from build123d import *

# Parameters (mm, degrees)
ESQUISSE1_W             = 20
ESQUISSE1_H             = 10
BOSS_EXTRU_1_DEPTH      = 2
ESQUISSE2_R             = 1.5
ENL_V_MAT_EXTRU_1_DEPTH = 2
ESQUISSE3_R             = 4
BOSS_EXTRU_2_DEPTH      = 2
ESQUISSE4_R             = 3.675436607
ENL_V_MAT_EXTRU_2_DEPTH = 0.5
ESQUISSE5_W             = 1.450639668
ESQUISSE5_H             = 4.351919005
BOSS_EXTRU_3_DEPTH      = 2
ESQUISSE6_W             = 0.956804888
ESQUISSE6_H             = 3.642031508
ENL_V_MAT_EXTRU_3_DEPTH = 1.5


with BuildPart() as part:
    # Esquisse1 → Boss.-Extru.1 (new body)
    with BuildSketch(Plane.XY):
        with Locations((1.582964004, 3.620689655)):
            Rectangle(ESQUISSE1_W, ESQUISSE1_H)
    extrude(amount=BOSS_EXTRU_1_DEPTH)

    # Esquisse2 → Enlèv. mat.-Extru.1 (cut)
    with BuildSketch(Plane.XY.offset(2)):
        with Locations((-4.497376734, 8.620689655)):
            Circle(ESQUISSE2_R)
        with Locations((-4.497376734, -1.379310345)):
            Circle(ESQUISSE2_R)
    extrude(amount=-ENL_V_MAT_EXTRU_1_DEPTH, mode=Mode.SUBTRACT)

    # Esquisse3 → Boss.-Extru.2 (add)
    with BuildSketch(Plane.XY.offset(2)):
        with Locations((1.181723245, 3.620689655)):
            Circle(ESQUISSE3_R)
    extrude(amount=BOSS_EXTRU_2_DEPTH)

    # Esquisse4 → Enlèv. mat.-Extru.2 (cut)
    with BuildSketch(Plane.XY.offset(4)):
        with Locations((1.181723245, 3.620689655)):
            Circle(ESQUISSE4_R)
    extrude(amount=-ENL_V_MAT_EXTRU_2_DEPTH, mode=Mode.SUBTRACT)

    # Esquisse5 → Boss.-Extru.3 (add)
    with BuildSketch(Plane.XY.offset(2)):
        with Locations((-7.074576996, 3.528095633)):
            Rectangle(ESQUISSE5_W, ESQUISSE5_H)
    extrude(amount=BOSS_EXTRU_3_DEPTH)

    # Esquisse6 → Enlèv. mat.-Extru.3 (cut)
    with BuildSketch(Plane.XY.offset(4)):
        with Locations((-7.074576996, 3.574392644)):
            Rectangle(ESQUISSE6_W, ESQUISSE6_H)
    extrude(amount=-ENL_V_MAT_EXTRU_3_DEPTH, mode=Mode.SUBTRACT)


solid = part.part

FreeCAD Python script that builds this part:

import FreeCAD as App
import Part
import Sketcher
from FreeCAD import Vector
Q = App.Units.Quantity

doc = App.newDocument("Part")
body = doc.addObject("PartDesign::Body", "Body")

sketch1 = doc.addObject("Sketcher::SketchObject", "Sketch")
body.addObject(sketch1)
sketch1.AttachmentSupport = (doc.XY_Plane, [""])
sketch1.MapMode = "FlatFace"
sketch1.addGeometry(Part.LineSegment(Vector(-8, 9, 0), Vector(-8, -1, 0)), False)
sketch1.addGeometry(Part.LineSegment(Vector(-8, -1, 0), Vector(12, -1, 0)), False)
sketch1.addGeometry(Part.LineSegment(Vector(12, -1, 0), Vector(12, 9, 0)), False)
sketch1.addGeometry(Part.LineSegment(Vector(12, 9, 0), Vector(-8, 9, 0)), False)
sketch1.addConstraint(Sketcher.Constraint("Coincident", 0, 2, 1, 1))
sketch1.addConstraint(Sketcher.Constraint("Coincident", 1, 2, 2, 1))
sketch1.addConstraint(Sketcher.Constraint("Coincident", 2, 2, 3, 1))
sketch1.addConstraint(Sketcher.Constraint("Coincident", 3, 2, 0, 1))
sketch1.addConstraint(Sketcher.Constraint("Vertical", 0))
sketch1.addConstraint(Sketcher.Constraint("Horizontal", 1))
sketch1.addConstraint(Sketcher.Constraint("Vertical", 2))
sketch1.addConstraint(Sketcher.Constraint("Horizontal", 3))
sketch1.addConstraint(Sketcher.Constraint("DistanceX", 1, 1, 1, 2, Q("20 mm")))
sketch1.addConstraint(Sketcher.Constraint("DistanceY", 0, 2, 0, 1, Q("10 mm")))
sketch1.addConstraint(Sketcher.Constraint("DistanceY", 0, 2, -1, 1, Q("1.37931 mm")))
sketch1.addConstraint(Sketcher.Constraint("DistanceX", 0, 2, -1, 1, Q("8.417036 mm")))
pad1 = doc.addObject("PartDesign::Pad", "Pad")
body.addObject(pad1)
pad1.Profile = sketch1
pad1.Length = 2

sketch2 = doc.addObject("Sketcher::SketchObject", "Sketch001")
body.addObject(sketch2)
sketch2.AttachmentSupport = (doc.XY_Plane, [""])
sketch2.MapMode = "FlatFace"
sketch2.AttachmentOffset = App.Placement(Vector(0, 0, 2), App.Rotation())
sketch2.addGeometry(Part.Circle(Vector(-4.5, 8.6, 0), Vector(0, 0, 1), 1.5), False)
sketch2.addGeometry(Part.Circle(Vector(-4.5, -1.4, 0), Vector(0, 0, 1), 1.5), False)
sketch2.addConstraint(Sketcher.Constraint("Equal", 0, 1))
sketch2.addConstraint(Sketcher.Constraint("Vertical", 0, 3, 1, 3))
sketch2.addConstraint(Sketcher.Constraint("Diameter", 0, Q("3 mm")))
sketch2.addConstraint(Sketcher.Constraint("DistanceY", 1, 3, 0, 3, Q("10 mm")))
sketch2.addConstraint(Sketcher.Constraint("DistanceY", -1, 1, 0, 3, Q("8.62069 mm")))
sketch2.addConstraint(Sketcher.Constraint("DistanceX", 0, 3, -1, 1, Q("4.497377 mm")))
pocket1 = doc.addObject("PartDesign::Pocket", "Pocket")
body.addObject(pocket1)
pocket1.Profile = sketch2
pocket1.Length = 2

sketch3 = doc.addObject("Sketcher::SketchObject", "Sketch002")
body.addObject(sketch3)
sketch3.AttachmentSupport = (doc.XY_Plane, [""])
sketch3.MapMode = "FlatFace"
sketch3.AttachmentOffset = App.Placement(Vector(0, 0, 2), App.Rotation())
sketch3.addGeometry(Part.Circle(Vector(1.2, 3.6, 0), Vector(0, 0, 1), 4), False)
sketch3.addConstraint(Sketcher.Constraint("Diameter", 0, Q("8 mm")))
sketch3.addConstraint(Sketcher.Constraint("DistanceY", -1, 1, 0, 3, Q("3.62069 mm")))
sketch3.addConstraint(Sketcher.Constraint("DistanceX", -1, 1, 0, 3, Q("1.181723 mm")))
pad2 = doc.addObject("PartDesign::Pad", "Pad001")
body.addObject(pad2)
pad2.Profile = sketch3
pad2.Length = 2

sketch4 = doc.addObject("Sketcher::SketchObject", "Sketch003")
body.addObject(sketch4)
sketch4.AttachmentSupport = (doc.XY_Plane, [""])
sketch4.MapMode = "FlatFace"
sketch4.AttachmentOffset = App.Placement(Vector(0, 0, 4), App.Rotation())
sketch4.addGeometry(Part.Circle(Vector(1.2, 3.6, 0), Vector(0, 0, 1), 3.7), False)
sketch4.addConstraint(Sketcher.Constraint("Diameter", 0, Q("7.350873 mm")))
sketch4.addConstraint(Sketcher.Constraint("DistanceY", -1, 1, 0, 3, Q("3.62069 mm")))
sketch4.addConstraint(Sketcher.Constraint("DistanceX", -1, 1, 0, 3, Q("1.181723 mm")))
pocket2 = doc.addObject("PartDesign::Pocket", "Pocket001")
body.addObject(pocket2)
pocket2.Profile = sketch4
pocket2.Length = 0.5

sketch5 = doc.addObject("Sketcher::SketchObject", "Sketch004")
body.addObject(sketch5)
sketch5.AttachmentSupport = (doc.XY_Plane, [""])
sketch5.MapMode = "FlatFace"
sketch5.AttachmentOffset = App.Placement(Vector(0, 0, 2), App.Rotation())
sketch5.addGeometry(Part.LineSegment(Vector(-7.8, 5.7, 0), Vector(-7.8, 1.4, 0)), False)
sketch5.addGeometry(Part.LineSegment(Vector(-7.8, 1.4, 0), Vector(-6.3, 1.4, 0)), False)
sketch5.addGeometry(Part.LineSegment(Vector(-6.3, 1.4, 0), Vector(-6.3, 5.7, 0)), False)
sketch5.addGeometry(Part.LineSegment(Vector(-6.3, 5.7, 0), Vector(-7.8, 5.7, 0)), False)
sketch5.addConstraint(Sketcher.Constraint("Coincident", 0, 2, 1, 1))
sketch5.addConstraint(Sketcher.Constraint("Coincident", 1, 2, 2, 1))
sketch5.addConstraint(Sketcher.Constraint("Coincident", 2, 2, 3, 1))
sketch5.addConstraint(Sketcher.Constraint("Coincident", 3, 2, 0, 1))
sketch5.addConstraint(Sketcher.Constraint("Vertical", 0))
sketch5.addConstraint(Sketcher.Constraint("Horizontal", 1))
sketch5.addConstraint(Sketcher.Constraint("Vertical", 2))
sketch5.addConstraint(Sketcher.Constraint("Horizontal", 3))
sketch5.addConstraint(Sketcher.Constraint("DistanceX", 1, 1, 1, 2, Q("1.45064 mm")))
sketch5.addConstraint(Sketcher.Constraint("DistanceY", 0, 2, 0, 1, Q("4.351919 mm")))
sketch5.addConstraint(Sketcher.Constraint("DistanceX", 0, 2, -1, 1, Q("7.799897 mm")))
sketch5.addConstraint(Sketcher.Constraint("DistanceY", -1, 1, 0, 2, Q("1.352136 mm")))
pad3 = doc.addObject("PartDesign::Pad", "Pad002")
body.addObject(pad3)
pad3.Profile = sketch5
pad3.Length = 2

sketch6 = doc.addObject("Sketcher::SketchObject", "Sketch005")
body.addObject(sketch6)
sketch6.AttachmentSupport = (doc.XY_Plane, [""])
sketch6.MapMode = "FlatFace"
sketch6.AttachmentOffset = App.Placement(Vector(0, 0, 4), App.Rotation())
sketch6.addGeometry(Part.LineSegment(Vector(-7.6, 5.4, 0), Vector(-7.6, 1.8, 0)), False)
sketch6.addGeometry(Part.LineSegment(Vector(-7.6, 1.8, 0), Vector(-6.6, 1.8, 0)), False)
sketch6.addGeometry(Part.LineSegment(Vector(-6.6, 1.8, 0), Vector(-6.6, 5.4, 0)), False)
sketch6.addGeometry(Part.LineSegment(Vector(-6.6, 5.4, 0), Vector(-7.6, 5.4, 0)), False)
sketch6.addConstraint(Sketcher.Constraint("Coincident", 0, 2, 1, 1))
sketch6.addConstraint(Sketcher.Constraint("Coincident", 1, 2, 2, 1))
sketch6.addConstraint(Sketcher.Constraint("Coincident", 2, 2, 3, 1))
sketch6.addConstraint(Sketcher.Constraint("Coincident", 3, 2, 0, 1))
sketch6.addConstraint(Sketcher.Constraint("Vertical", 0))
sketch6.addConstraint(Sketcher.Constraint("Horizontal", 1))
sketch6.addConstraint(Sketcher.Constraint("Vertical", 2))
sketch6.addConstraint(Sketcher.Constraint("Horizontal", 3))
sketch6.addConstraint(Sketcher.Constraint("DistanceY", 0, 2, 0, 1, Q("3.642032 mm")))
sketch6.addConstraint(Sketcher.Constraint("DistanceX", 1, 1, 1, 2, Q("0.956805 mm")))
sketch6.addConstraint(Sketcher.Constraint("DistanceX", 0, 2, -1, 1, Q("7.552979 mm")))
sketch6.addConstraint(Sketcher.Constraint("DistanceY", -1, 1, 2, 2, Q("5.395408 mm")))
pocket3 = doc.addObject("PartDesign::Pocket", "Pocket002")
body.addObject(pocket3)
pocket3.Profile = sketch6
pocket3.Length = 1.5

doc.recompute()
